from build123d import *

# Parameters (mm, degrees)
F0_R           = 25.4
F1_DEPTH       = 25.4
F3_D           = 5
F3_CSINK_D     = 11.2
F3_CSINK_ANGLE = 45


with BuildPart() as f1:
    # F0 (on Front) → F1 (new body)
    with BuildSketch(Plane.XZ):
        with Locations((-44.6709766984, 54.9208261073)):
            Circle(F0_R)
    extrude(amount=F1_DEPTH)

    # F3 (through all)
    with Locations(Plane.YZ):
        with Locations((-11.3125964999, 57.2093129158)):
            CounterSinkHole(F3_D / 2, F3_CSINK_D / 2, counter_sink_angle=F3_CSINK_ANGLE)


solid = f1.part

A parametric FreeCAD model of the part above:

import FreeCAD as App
import Part
import Sketcher
Q = App.Units.Quantity

doc = App.newDocument("Part")
body = doc.addObject("PartDesign::Body", "Body")

# Sketch on XZ plane
sketch1 = doc.addObject("Sketcher::SketchObject", "Sketch")
body.addObject(sketch1)
sketch1.AttachmentSupport = (doc.XZ_Plane, [""])
sketch1.MapMode = "FlatFace"
sketch1.addGeometry(Part.Circle(App.Vector(-45, 55, 0), App.Vector(0, 0, 1), 25), False)
sketch1.addConstraint([
    Sketcher.Constraint("Diameter", 0, Q("2 in")),
    Sketcher.Constraint("DistanceX", 0, 3, -1, 1, Q("1.7586999 in")),
    Sketcher.Constraint("DistanceY", -1, 1, 0, 3, 54.920826),
])
pad1 = doc.addObject("PartDesign::Pad", "Pad")
body.addObject(pad1)
pad1.Profile = sketch1
pad1.Length = Q("1 in")

# Sketch on YZ plane
sketch2 = doc.addObject("Sketcher::SketchObject", "Sketch001")
body.addObject(sketch2)
sketch2.AttachmentSupport = (doc.YZ_Plane, [""])
sketch2.MapMode = "FlatFace"
sketch2.addGeometry(Part.Circle(App.Vector(-11.3, 57.2, 0), App.Vector(0, 0, 1), 2.5), False)
sketch2.addConstraint([
    Sketcher.Constraint("Diameter", 0, 5.0),
    Sketcher.Constraint("DistanceX", 0, 3, -1, 1, 11.312596),
    Sketcher.Constraint("DistanceY", -1, 1, 0, 3, 57.209313),
])
doc.recompute()
hole = doc.addObject("PartDesign::Hole", "Hole")
body.addObject(hole)
hole.Profile = sketch2
hole.ThreadType = "None"
hole.Diameter = 5
hole.DepthType = "ThroughAll"
hole.HoleCutType = "Countersink"
hole.HoleCutDiameter = 11.2
hole.HoleCutCountersinkAngle = 45

doc.recompute()
